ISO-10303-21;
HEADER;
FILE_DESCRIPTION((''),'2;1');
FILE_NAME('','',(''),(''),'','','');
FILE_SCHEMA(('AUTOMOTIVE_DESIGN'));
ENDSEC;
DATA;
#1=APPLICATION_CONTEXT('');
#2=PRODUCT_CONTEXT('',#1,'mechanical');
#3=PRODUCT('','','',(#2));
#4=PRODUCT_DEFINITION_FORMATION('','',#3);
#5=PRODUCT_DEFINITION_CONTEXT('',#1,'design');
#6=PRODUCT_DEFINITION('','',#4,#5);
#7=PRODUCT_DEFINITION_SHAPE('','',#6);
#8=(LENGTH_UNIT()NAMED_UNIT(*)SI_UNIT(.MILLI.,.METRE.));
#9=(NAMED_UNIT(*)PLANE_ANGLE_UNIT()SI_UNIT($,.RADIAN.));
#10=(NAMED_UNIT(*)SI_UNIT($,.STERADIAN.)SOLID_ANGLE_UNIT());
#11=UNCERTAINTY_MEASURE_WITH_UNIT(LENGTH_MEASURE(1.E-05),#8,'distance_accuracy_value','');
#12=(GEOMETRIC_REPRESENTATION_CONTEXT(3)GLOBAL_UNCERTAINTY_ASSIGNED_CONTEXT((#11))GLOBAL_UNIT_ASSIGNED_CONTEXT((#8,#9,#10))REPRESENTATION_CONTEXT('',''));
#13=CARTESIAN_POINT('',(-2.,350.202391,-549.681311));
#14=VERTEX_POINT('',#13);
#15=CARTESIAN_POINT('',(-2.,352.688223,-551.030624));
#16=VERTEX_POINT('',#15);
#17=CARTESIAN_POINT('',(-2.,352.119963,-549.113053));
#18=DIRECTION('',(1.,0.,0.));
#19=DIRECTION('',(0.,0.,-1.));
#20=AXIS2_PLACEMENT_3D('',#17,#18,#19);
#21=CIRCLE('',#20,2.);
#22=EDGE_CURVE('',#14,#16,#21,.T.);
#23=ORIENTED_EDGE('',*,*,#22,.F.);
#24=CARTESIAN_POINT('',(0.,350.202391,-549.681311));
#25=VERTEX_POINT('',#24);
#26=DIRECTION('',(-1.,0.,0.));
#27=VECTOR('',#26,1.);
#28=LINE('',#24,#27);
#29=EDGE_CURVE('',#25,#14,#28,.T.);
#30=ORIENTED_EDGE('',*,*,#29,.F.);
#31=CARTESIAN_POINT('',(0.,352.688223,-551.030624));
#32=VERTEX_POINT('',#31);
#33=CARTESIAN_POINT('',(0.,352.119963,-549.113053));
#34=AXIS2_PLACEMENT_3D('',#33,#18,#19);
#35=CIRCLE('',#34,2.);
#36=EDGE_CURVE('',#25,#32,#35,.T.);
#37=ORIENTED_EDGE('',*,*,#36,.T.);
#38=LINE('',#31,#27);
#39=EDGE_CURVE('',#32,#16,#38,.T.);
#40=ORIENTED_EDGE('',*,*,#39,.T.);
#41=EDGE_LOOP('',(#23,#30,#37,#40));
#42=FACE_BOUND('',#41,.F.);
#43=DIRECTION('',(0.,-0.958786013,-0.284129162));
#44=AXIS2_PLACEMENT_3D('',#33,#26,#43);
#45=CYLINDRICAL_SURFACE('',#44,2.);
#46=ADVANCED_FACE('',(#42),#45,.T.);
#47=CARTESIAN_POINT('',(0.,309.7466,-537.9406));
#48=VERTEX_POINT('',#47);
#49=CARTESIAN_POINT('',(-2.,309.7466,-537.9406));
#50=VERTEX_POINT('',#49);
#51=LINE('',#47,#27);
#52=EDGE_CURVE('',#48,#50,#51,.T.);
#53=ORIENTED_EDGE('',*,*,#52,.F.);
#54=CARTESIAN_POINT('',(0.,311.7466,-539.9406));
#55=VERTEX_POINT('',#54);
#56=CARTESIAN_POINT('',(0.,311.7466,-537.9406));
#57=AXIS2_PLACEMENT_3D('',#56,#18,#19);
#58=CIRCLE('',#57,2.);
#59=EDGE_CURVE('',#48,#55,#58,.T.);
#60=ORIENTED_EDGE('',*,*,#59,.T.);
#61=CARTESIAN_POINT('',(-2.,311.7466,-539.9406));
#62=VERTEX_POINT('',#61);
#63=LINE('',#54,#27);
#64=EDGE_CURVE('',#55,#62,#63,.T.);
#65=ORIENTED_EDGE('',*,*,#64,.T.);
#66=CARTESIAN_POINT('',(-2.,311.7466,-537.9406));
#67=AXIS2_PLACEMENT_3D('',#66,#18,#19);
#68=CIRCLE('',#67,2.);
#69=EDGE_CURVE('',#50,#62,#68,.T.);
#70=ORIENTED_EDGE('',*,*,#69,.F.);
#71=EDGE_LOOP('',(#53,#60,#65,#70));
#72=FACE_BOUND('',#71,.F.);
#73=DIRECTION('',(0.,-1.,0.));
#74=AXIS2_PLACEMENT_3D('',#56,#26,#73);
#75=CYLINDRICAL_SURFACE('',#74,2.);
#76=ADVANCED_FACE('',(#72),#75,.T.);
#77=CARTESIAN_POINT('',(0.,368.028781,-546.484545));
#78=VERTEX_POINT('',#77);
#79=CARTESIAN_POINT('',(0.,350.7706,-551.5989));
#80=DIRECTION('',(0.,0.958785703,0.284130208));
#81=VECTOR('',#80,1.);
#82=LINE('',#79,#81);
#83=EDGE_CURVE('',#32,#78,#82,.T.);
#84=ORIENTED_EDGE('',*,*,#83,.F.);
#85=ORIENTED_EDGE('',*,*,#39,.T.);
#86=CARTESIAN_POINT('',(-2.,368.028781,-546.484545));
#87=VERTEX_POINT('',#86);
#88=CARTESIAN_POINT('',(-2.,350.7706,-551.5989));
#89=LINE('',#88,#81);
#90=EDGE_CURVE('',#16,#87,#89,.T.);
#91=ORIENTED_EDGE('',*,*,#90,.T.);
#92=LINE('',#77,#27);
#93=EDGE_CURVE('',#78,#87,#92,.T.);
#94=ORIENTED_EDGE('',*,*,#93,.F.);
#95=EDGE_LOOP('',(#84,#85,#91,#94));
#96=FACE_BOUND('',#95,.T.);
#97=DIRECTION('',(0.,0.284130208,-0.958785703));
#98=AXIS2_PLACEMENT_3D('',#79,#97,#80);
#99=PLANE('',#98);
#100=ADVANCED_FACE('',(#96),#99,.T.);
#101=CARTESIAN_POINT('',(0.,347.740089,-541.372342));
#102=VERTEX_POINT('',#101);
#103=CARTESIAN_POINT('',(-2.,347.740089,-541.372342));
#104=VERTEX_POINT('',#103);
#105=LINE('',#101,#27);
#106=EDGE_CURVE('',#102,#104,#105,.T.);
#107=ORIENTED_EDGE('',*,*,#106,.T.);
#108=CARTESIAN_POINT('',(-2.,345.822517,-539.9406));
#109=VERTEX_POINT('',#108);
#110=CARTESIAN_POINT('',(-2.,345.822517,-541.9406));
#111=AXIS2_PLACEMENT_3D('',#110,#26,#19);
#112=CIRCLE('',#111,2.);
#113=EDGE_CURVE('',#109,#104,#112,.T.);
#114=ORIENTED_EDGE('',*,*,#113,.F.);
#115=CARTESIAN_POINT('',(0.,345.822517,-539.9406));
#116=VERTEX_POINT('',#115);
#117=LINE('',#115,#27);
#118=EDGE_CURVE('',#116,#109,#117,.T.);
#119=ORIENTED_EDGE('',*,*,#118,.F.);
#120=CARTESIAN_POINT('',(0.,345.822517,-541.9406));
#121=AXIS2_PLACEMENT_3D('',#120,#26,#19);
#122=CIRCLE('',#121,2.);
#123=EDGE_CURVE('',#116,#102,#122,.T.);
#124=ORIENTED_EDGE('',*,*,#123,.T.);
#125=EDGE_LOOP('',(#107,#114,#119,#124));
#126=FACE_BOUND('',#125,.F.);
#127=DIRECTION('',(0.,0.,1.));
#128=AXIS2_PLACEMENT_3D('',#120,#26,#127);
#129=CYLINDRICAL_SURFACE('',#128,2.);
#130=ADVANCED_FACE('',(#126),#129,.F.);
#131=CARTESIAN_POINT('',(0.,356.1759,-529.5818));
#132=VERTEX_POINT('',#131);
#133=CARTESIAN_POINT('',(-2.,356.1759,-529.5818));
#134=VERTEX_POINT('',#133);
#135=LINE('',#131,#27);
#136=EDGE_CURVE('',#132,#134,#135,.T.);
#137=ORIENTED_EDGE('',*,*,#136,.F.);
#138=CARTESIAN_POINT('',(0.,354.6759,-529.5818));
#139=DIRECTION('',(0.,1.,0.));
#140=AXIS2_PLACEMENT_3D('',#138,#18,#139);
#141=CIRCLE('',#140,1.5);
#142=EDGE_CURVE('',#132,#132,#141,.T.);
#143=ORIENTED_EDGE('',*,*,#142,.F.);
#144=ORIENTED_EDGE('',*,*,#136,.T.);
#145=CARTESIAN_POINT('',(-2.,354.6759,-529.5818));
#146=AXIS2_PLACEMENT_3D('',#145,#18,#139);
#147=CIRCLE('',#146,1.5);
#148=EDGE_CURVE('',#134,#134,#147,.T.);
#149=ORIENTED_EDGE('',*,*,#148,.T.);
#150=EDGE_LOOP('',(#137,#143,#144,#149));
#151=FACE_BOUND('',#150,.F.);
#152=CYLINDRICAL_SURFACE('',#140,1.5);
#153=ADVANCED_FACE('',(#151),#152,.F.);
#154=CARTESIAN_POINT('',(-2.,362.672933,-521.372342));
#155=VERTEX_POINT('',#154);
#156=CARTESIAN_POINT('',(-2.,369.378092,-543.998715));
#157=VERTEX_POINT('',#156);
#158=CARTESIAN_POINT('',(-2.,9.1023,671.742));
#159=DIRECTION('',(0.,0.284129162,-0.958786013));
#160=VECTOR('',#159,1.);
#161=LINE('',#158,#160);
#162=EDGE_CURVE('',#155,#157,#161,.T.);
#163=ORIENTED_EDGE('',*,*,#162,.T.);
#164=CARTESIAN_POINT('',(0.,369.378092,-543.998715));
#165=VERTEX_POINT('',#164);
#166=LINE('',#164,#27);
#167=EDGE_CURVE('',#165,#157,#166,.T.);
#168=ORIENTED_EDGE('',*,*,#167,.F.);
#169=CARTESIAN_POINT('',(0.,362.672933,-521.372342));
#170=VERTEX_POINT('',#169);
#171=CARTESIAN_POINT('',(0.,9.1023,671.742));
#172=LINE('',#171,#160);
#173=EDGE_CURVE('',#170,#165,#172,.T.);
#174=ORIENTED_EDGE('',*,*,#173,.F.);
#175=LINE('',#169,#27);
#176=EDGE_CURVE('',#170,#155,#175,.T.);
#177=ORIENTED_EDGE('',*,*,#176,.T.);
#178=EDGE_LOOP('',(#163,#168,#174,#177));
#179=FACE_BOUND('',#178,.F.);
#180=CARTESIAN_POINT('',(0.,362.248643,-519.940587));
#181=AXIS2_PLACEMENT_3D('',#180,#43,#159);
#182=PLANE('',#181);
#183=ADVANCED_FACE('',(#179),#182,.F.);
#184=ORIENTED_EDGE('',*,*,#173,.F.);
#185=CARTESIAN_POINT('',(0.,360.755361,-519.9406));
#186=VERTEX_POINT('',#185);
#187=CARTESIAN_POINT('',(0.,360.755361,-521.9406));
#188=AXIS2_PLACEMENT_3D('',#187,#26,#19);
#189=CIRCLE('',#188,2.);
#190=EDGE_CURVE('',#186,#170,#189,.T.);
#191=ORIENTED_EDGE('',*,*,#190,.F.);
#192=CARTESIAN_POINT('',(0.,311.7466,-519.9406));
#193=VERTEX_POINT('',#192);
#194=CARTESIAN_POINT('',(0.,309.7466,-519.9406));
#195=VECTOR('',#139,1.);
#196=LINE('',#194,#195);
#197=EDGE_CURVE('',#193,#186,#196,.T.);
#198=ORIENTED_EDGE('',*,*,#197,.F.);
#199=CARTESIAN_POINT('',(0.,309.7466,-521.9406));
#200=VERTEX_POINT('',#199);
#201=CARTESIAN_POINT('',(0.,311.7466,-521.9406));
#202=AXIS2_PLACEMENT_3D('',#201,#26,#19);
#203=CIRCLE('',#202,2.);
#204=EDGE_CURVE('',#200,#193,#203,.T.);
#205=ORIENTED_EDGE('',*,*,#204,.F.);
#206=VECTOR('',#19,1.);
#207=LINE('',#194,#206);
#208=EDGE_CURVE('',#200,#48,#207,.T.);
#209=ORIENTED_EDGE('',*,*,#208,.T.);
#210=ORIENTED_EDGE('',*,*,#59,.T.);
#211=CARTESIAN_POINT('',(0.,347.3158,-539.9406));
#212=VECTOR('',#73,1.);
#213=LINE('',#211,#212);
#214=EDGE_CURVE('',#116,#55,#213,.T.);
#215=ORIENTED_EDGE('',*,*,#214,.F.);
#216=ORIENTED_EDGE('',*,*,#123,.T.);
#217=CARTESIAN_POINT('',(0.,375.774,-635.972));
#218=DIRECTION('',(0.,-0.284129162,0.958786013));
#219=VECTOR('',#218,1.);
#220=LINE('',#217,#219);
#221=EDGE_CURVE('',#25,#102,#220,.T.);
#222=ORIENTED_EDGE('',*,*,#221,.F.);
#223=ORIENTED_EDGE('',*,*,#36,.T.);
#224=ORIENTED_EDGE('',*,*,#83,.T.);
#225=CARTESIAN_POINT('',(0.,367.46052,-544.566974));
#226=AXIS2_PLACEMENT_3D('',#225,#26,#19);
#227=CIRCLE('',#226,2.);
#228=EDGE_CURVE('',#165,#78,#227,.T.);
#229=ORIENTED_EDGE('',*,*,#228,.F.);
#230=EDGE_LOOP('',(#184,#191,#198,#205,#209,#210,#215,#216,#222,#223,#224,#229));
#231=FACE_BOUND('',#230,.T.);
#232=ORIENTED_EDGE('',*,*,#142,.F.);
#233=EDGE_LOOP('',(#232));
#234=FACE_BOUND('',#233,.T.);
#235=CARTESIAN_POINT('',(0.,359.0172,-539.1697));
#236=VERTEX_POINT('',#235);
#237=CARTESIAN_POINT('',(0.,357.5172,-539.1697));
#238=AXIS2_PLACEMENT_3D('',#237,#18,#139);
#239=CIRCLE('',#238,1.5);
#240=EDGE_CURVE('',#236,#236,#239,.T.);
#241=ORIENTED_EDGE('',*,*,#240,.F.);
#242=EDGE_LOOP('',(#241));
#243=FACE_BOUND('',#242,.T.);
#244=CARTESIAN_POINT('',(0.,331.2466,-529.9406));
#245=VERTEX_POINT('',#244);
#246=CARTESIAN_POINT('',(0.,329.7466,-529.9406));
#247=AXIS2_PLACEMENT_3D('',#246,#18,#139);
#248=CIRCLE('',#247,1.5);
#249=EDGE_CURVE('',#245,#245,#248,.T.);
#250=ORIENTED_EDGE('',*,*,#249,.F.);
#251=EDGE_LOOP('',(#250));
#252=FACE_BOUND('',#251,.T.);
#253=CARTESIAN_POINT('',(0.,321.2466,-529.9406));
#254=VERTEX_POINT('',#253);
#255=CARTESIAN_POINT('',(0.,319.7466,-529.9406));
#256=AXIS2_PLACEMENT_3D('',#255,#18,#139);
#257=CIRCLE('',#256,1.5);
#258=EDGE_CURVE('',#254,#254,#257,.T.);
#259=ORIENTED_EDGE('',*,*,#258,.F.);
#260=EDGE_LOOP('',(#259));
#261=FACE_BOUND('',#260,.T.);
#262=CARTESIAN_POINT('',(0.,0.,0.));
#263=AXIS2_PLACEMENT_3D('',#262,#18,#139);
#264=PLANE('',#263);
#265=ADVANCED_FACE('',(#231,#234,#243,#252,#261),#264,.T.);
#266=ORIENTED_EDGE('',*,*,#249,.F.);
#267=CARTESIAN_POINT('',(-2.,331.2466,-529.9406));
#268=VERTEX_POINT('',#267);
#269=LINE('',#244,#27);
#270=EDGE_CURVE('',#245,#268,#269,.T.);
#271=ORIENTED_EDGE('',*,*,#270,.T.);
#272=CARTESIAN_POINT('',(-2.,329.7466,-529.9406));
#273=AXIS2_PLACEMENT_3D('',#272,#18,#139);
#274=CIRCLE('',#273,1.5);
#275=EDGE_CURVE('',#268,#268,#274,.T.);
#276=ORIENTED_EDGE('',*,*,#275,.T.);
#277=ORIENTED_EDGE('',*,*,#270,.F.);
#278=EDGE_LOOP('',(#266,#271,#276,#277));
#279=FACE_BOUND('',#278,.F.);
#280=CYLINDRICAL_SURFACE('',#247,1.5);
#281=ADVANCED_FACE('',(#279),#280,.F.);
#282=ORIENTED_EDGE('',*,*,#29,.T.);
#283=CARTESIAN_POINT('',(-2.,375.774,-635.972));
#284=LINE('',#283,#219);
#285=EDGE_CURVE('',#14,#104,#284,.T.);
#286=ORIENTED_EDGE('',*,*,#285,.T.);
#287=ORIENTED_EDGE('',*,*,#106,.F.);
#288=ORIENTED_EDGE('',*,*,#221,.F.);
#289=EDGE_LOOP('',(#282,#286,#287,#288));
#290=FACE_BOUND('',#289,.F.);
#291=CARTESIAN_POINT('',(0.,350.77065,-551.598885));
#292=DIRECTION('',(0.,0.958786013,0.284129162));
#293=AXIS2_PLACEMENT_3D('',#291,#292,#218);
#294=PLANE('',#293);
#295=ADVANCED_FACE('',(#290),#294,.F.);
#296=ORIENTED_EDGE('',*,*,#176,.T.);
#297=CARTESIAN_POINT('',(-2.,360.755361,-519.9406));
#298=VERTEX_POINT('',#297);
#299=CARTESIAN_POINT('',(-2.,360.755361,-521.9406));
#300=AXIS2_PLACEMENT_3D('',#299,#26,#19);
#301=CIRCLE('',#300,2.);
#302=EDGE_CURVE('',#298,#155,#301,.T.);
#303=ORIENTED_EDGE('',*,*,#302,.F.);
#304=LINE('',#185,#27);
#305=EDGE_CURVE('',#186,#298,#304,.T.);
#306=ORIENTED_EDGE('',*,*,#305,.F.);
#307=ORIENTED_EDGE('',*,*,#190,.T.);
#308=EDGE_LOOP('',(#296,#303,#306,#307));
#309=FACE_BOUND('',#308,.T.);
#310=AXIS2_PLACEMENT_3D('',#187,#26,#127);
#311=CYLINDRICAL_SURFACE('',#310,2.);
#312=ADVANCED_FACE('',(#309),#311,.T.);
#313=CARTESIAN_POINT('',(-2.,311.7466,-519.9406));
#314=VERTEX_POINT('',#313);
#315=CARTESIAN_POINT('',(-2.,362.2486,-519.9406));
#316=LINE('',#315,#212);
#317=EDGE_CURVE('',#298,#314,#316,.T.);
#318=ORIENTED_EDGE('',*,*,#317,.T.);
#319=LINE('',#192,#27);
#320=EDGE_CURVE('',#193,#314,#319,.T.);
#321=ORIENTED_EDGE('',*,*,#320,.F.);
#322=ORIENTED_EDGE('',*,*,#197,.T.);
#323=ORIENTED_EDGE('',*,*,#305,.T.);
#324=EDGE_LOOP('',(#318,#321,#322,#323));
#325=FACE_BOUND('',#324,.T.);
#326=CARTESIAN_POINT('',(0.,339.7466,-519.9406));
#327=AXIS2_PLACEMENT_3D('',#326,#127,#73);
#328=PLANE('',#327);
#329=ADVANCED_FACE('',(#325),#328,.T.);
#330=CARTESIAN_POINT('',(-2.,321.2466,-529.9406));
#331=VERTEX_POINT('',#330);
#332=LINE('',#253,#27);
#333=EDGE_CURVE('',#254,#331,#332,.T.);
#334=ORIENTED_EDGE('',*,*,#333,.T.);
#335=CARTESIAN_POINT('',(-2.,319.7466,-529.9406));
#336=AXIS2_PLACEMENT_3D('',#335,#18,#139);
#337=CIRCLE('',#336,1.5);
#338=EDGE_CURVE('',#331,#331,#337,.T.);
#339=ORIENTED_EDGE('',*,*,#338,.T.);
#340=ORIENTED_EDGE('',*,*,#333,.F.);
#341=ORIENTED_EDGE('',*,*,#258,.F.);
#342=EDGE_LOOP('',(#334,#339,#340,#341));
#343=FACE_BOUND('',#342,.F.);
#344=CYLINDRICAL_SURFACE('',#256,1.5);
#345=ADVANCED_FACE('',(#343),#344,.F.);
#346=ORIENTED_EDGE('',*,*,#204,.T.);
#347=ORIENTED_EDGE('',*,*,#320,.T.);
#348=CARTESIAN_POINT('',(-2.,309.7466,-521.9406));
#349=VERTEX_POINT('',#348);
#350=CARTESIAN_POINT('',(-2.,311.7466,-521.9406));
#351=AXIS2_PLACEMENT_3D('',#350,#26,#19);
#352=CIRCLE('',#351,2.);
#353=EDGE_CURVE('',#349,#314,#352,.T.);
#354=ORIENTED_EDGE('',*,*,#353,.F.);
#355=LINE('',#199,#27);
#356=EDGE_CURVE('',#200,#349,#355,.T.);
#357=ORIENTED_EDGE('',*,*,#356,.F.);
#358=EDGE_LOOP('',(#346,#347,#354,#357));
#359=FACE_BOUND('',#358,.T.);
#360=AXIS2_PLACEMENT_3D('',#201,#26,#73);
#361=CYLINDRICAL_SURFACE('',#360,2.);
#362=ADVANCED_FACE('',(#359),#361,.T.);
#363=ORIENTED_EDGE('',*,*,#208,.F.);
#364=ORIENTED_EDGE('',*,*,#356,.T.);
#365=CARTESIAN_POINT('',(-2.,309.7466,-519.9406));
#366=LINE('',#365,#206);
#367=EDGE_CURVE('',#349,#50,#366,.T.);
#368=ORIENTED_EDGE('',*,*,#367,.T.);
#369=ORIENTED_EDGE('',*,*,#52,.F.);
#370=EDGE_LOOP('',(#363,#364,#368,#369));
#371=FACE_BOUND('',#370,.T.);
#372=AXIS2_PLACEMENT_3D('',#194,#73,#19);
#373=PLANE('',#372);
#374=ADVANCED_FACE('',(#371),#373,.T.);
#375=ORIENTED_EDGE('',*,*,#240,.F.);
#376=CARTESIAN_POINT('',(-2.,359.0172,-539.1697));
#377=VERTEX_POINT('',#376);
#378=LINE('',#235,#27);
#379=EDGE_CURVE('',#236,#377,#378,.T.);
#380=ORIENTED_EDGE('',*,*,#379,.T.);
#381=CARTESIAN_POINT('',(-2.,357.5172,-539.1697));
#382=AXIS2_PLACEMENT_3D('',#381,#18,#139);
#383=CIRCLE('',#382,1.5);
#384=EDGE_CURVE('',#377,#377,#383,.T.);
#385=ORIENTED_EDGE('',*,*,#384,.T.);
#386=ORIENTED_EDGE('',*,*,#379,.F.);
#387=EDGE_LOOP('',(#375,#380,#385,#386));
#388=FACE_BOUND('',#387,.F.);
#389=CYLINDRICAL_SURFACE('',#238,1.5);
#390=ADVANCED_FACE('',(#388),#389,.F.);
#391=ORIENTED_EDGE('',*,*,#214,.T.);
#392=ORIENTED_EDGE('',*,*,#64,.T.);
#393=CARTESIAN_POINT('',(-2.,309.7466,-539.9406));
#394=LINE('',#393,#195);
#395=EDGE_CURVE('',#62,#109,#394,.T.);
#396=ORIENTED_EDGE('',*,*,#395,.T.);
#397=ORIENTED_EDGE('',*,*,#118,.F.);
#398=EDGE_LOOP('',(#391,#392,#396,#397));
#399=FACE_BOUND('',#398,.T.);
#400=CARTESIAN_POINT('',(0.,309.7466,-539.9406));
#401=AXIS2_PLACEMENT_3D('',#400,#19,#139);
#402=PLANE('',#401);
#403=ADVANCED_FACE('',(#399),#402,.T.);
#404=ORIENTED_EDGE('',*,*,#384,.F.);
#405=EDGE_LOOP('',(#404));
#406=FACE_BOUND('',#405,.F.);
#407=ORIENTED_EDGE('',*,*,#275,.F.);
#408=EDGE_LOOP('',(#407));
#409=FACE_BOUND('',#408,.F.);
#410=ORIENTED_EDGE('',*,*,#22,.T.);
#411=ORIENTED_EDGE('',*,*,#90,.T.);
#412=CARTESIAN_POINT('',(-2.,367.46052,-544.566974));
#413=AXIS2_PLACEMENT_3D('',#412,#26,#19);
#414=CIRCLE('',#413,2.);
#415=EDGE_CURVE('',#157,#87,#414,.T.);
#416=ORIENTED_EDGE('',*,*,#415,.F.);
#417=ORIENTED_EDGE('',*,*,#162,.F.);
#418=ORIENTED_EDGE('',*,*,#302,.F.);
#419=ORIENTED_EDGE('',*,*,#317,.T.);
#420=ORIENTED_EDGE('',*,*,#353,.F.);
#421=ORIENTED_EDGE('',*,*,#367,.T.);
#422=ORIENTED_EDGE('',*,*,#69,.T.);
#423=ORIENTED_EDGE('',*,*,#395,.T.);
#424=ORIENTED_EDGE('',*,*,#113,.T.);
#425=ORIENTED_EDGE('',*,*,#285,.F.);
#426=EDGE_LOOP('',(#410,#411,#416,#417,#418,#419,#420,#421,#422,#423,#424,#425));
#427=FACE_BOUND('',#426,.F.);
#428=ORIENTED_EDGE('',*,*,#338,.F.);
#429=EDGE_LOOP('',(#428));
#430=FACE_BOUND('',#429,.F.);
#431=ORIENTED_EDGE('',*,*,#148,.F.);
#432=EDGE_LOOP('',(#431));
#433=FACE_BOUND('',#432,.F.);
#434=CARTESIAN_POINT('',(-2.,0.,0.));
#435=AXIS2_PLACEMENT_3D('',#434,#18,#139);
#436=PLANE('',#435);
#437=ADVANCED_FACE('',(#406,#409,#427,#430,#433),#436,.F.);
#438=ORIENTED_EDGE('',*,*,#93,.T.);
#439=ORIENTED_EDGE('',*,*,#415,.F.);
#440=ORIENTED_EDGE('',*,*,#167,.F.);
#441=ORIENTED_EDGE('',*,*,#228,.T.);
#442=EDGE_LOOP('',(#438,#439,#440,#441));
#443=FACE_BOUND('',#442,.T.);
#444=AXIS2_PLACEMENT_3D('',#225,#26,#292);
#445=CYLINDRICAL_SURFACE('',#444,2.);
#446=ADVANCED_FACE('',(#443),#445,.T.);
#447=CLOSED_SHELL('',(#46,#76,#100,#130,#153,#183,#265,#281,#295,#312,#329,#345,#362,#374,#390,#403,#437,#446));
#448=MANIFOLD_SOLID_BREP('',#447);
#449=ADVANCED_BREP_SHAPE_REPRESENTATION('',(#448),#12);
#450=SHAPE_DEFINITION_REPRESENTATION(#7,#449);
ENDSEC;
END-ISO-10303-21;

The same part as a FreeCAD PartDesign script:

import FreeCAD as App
import Part
import Sketcher
from FreeCAD import Vector
Q = App.Units.Quantity


def edges_at(feature, points):
    """Names of the edges that pass closest to the given points."""
    edges = feature.Shape.Edges
    near = lambda p: min(range(len(edges)), key=lambda i: edges[i].distToShape(Part.Vertex(*p))[0])
    return sorted({f"Edge{near(p) + 1}" for p in points})


def add_polygon(sketch, points):
    """Adds a closed chain of lines whose ends are joined by coincident constraints."""
    first, n = sketch.GeometryCount, len(points)
    for a, b in zip(points, points[1:] + points[:1]):
        sketch.addGeometry(Part.LineSegment(App.Vector(*a, 0), App.Vector(*b, 0)), False)
    for i in range(n):
        sketch.addConstraint(Sketcher.Constraint("Coincident", first + i, 2, first + (i + 1) % n, 1))

doc = App.newDocument("Part")
body = doc.addObject("PartDesign::Body", "Body")

# Sketch on YZ plane
sketch1 = doc.addObject("Sketcher::SketchObject", "Sketch")
body.addObject(sketch1)
sketch1.AttachmentSupport = (doc.YZ_Plane, [""])
sketch1.MapMode = "FlatFace"
add_polygon(sketch1, [(309.7, -519.9), (309.7, -539.9), (347.3, -539.9), (350.8, -551.6), (369.9, -545.9), (362.2, -519.9)])  # lines 0-5
sketch1.addGeometry(Part.Circle(Vector(319.7, -529.9, 0), Vector(0, 0, 1), 1.5), False)  # 6
sketch1.addGeometry(Part.Circle(Vector(329.7, -529.9, 0), Vector(0, 0, 1), 1.5), False)  # 7
sketch1.addGeometry(Part.Circle(Vector(354.7, -529.6, 0), Vector(0, 0, 1), 1.5), False)  # 8
sketch1.addGeometry(Part.Circle(Vector(357.5, -539.2, 0), Vector(0, 0, 1), 1.5), False)  # 9
sketch1.addConstraint([
    Sketcher.Constraint("Vertical", 0),
    Sketcher.Constraint("Horizontal", 1),
    Sketcher.Constraint("Horizontal", 5),
    Sketcher.Constraint("Equal", 6, 7),
    Sketcher.Constraint("Equal", 7, 8),
    Sketcher.Constraint("Equal", 8, 9),
    Sketcher.Constraint("Perpendicular", 2, 3),
    Sketcher.Constraint("Perpendicular", 3, 4),
    Sketcher.Constraint("Horizontal", 6, 3, 7, 3),
    Sketcher.Constraint("Diameter", 6, Q("3 mm")),
    Sketcher.Constraint("DistanceY", 0, 2, 0, 1, Q("20 mm")),
    Sketcher.Constraint("Distance", 3, Q("20 mm")),
    Sketcher.Constraint("DistanceX", 6, 3, 7, 3, Q("10 mm")),
    Sketcher.Constraint("DistanceX", 0, 2, 6, 3, Q("10 mm")),
    Sketcher.Constraint("DistanceY", 0, 2, 6, 3, Q("10 mm")),
    Sketcher.Constraint("DistanceX", 5, 2, 5, 1, Q("52.502 mm")),
    Sketcher.Constraint("DistanceX", 1, 2, 8, 3, Q("7.36 mm")),
    Sketcher.Constraint("DistanceX", 1, 1, 1, 2, Q("37.5692 mm")),
    Sketcher.Constraint("DistanceX", -1, 1, 8, 3, Q("354.676 mm")),
    Sketcher.Constraint("DistanceY", 2, 2, -1, 1, Q("551.599 mm")),
    Sketcher.Constraint("DistanceY", 9, 3, 8, 3, Q("9.588 mm")),
    Sketcher.Constraint("DistanceY", 9, 3, 7, 3, Q("9.229 mm")),
    Sketcher.Constraint("DistanceY", 2, 2, 8, 3, Q("22.017 mm")),
    Sketcher.Constraint("DistanceX", 9, 3, 3, 2, Q("12.429 mm")),
])
pad1 = doc.addObject("PartDesign::Pad", "Pad")
body.addObject(pad1)
pad1.Profile = sketch1
pad1.Length = 2
pad1.Reversed = True
doc.recompute()

fillet = doc.addObject("PartDesign::Fillet", "Fillet")
body.addObject(fillet)
fillet.Base = (pad1, edges_at(pad1, [
    (-1, 309.747, -519.941),
    (-1, 309.747, -539.941),
    (-1, 347.316, -539.941),
    (-1, 350.771, -551.599),
    (-1, 369.946, -545.916),
    (-1, 362.249, -519.941),
]))
fillet.Radius = 2

doc.recompute()
